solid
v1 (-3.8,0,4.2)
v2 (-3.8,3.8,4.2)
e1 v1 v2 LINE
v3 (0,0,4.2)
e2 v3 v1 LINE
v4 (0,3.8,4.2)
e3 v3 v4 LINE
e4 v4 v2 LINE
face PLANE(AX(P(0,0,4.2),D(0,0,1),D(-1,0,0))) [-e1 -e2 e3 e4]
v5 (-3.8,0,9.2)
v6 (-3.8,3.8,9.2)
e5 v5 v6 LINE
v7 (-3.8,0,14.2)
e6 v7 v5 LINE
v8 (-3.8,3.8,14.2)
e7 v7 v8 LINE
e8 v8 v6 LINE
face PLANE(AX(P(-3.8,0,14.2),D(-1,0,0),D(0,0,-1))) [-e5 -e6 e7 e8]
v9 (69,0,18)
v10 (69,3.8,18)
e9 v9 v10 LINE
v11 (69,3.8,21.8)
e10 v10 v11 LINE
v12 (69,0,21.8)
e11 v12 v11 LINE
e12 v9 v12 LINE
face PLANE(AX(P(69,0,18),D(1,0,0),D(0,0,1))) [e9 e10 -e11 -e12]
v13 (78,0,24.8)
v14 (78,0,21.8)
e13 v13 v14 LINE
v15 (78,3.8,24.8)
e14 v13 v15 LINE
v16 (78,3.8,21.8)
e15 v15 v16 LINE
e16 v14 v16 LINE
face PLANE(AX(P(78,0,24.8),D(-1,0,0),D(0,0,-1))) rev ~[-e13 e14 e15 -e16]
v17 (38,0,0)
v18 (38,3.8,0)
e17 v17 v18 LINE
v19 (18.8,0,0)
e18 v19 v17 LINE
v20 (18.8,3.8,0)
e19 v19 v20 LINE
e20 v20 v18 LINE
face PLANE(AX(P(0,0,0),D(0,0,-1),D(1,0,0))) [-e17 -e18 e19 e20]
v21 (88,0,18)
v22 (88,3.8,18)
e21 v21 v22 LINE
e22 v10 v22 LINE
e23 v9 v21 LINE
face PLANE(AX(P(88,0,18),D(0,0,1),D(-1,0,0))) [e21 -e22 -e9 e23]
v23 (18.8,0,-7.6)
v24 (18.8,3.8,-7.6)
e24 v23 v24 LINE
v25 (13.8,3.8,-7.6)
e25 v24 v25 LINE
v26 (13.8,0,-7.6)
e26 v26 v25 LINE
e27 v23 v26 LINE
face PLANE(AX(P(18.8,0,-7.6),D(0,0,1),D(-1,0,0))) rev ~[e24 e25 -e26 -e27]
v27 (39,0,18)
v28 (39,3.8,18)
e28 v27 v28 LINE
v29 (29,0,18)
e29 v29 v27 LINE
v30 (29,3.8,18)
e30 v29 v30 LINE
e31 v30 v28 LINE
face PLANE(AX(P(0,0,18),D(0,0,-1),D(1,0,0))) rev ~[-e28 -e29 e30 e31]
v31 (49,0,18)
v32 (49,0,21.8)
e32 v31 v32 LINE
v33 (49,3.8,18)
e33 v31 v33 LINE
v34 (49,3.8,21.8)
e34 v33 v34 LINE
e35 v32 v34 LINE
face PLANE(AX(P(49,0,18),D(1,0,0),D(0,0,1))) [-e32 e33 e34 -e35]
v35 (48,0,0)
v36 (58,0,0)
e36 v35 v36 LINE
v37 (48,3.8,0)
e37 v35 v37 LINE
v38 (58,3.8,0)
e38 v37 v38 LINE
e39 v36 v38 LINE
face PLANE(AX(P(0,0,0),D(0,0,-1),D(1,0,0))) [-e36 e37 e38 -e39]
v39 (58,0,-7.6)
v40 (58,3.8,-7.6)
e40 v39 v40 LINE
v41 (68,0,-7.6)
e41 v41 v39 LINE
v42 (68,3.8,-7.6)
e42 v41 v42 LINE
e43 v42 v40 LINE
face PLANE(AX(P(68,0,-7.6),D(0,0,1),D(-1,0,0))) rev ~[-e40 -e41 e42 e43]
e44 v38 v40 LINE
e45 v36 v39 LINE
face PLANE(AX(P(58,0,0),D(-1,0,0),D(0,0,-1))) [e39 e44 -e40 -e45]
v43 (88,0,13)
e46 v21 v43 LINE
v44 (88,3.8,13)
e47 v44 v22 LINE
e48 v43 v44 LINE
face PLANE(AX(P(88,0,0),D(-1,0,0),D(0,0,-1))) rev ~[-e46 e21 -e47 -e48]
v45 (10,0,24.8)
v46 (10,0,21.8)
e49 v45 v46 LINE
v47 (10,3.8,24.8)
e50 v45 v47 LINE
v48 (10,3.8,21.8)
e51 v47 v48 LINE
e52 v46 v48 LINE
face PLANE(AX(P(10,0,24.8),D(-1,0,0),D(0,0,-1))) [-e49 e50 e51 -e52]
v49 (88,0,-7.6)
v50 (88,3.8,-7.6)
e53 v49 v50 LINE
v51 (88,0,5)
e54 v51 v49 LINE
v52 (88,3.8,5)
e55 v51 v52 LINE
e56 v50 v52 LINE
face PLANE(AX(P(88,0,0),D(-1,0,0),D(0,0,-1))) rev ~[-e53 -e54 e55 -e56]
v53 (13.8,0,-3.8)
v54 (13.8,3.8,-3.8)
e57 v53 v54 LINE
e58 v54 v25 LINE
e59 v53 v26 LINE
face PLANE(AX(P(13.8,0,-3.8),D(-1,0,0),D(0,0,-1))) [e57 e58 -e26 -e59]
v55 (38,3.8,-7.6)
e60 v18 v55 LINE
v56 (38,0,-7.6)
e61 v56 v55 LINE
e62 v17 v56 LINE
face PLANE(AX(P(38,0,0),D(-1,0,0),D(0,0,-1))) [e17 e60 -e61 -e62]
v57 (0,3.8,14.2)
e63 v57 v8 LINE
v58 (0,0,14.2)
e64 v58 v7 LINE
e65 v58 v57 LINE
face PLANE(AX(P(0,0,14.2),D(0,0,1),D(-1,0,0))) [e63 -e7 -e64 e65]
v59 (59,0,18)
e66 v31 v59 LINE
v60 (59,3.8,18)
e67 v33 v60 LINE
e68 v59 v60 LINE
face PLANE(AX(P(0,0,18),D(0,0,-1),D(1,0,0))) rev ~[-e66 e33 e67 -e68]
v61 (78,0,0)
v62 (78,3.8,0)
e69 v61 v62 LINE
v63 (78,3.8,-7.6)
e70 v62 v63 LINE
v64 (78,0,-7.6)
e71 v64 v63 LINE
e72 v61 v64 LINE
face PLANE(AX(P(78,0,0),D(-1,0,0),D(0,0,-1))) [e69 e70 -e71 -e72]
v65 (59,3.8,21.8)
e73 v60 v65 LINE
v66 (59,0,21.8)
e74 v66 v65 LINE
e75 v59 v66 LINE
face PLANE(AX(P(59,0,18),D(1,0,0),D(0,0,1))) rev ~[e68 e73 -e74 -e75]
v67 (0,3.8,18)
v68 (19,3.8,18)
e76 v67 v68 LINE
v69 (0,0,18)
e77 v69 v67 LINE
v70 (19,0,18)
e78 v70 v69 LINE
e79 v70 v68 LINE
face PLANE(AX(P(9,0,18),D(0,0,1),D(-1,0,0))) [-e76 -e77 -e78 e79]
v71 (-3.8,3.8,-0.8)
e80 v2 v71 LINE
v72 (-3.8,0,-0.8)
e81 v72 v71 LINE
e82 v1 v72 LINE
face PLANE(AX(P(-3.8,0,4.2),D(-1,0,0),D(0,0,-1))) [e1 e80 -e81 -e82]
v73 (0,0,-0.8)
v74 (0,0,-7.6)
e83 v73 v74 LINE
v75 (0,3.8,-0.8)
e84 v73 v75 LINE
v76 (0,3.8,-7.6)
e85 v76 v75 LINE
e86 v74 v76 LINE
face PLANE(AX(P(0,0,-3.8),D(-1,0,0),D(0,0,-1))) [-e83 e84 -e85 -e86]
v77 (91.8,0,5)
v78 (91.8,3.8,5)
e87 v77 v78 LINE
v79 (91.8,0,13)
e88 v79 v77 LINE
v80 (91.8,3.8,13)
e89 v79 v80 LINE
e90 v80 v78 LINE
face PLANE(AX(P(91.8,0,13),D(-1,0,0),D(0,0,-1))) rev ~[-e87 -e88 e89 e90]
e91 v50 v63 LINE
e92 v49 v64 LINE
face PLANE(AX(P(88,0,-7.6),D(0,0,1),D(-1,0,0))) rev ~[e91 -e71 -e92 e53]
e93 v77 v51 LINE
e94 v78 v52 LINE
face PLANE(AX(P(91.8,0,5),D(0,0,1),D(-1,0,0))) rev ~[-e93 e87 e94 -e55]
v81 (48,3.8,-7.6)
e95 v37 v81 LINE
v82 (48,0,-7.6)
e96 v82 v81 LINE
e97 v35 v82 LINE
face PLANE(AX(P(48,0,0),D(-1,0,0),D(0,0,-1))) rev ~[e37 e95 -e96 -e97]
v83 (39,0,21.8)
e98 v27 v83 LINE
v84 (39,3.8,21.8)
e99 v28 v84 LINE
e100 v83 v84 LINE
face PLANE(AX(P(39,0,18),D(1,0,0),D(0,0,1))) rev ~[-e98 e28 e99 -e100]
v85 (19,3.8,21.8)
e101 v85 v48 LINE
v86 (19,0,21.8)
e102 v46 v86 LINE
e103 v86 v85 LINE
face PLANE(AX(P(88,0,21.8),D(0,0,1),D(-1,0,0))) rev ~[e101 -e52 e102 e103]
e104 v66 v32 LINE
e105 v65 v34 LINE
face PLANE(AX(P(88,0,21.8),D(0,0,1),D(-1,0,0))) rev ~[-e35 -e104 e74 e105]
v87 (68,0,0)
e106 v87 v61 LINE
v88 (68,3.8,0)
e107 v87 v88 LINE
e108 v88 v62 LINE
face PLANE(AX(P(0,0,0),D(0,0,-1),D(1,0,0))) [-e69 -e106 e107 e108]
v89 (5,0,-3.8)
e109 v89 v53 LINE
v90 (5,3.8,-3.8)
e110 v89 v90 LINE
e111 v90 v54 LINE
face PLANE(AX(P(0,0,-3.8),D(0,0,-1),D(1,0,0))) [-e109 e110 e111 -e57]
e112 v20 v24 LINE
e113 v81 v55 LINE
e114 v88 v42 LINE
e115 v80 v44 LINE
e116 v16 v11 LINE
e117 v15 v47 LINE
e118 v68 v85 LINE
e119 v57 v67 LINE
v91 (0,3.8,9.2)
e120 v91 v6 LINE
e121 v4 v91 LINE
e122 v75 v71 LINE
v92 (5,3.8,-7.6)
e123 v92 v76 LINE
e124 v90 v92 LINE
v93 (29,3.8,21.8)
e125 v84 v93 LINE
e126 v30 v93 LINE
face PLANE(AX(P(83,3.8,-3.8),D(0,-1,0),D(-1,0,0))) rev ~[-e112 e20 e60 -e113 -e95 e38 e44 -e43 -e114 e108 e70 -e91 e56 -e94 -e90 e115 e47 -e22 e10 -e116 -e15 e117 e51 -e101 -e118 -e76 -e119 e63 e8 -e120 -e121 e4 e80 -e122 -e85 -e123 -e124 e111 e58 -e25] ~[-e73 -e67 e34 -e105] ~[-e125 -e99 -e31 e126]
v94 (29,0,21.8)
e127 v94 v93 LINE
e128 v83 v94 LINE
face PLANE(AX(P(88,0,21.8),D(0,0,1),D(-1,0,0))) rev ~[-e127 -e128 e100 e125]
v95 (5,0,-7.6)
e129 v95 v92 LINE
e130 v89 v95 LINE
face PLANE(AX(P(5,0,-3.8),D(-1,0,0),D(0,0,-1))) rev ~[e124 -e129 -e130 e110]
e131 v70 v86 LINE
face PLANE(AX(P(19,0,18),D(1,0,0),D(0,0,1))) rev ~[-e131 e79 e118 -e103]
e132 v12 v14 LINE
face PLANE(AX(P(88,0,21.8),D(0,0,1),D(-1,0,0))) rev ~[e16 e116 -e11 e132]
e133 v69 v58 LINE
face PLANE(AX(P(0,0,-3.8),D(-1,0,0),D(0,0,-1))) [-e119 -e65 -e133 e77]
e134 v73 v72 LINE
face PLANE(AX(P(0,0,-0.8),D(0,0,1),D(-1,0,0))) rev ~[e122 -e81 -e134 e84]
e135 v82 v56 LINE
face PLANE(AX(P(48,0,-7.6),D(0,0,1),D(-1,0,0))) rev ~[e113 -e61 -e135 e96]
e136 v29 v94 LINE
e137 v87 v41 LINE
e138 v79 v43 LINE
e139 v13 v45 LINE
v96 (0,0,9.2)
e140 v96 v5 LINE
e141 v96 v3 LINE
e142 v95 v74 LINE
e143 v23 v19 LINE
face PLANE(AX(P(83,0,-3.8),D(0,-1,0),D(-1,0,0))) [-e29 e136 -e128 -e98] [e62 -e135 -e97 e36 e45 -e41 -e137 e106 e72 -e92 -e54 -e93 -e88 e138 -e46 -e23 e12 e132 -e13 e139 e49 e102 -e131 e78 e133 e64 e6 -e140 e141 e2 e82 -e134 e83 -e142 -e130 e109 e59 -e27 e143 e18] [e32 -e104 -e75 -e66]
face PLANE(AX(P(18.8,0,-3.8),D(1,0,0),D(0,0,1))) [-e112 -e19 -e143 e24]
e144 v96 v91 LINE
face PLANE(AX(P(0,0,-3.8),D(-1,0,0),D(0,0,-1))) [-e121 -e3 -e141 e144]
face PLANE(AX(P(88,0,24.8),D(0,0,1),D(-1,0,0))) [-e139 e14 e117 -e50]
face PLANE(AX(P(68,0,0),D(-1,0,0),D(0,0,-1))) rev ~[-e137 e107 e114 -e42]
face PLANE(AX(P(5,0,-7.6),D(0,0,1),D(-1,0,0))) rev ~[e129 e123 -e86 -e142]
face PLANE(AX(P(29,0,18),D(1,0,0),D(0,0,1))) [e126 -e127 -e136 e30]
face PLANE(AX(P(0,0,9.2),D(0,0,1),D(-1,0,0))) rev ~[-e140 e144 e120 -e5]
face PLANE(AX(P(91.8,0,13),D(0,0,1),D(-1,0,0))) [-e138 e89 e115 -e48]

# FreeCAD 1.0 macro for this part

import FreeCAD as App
import Part
import Sketcher

V = App.Vector


def add_polygon(sketch, points):
    """Adds a closed chain of lines whose ends are joined by coincident constraints."""
    first, n = sketch.GeometryCount, len(points)
    for a, b in zip(points, points[1:] + points[:1]):
        sketch.addGeometry(Part.LineSegment(App.Vector(*a, 0), App.Vector(*b, 0)), False)
    for i in range(n):
        sketch.addConstraint(Sketcher.Constraint("Coincident", first + i, 2, first + (i + 1) % n, 1))

doc = App.newDocument("Part")
body = doc.addObject("PartDesign::Body", "Body")

sketch1 = body.newObject("Sketcher::SketchObject", "Sketch")
sketch1.AttachmentSupport = (doc.getObject("XZ_Plane"), [""])
sketch1.MapMode = "FlatFace"
add_polygon(sketch1, [(0, 0), (0, 18), (88, 18), (88, 0)])
sketch1.addConstraint([
    Sketcher.Constraint("Vertical", 0),
    Sketcher.Constraint("Horizontal", 1),
    Sketcher.Constraint("Vertical", 2),
    Sketcher.Constraint("Horizontal", 3),
    Sketcher.Constraint("Coincident", 3, 2, -1, 1),
    Sketcher.Constraint("DistanceX", 1, 1, 1, 2, 88.0),
    Sketcher.Constraint("DistanceY", 0, 1, 0, 2, 18.0),
])
pad1 = body.newObject("PartDesign::Pad", "Pad")
pad1.Profile = sketch1
pad1.Length = 3.8
pad1.Reversed = True

sketch2 = body.newObject("Sketcher::SketchObject", "Sketch001")
sketch2.AttachmentSupport = (doc.getObject("XZ_Plane"), [""])
sketch2.MapMode = "FlatFace"
add_polygon(sketch2, [(0, 0), (0, -3.8), (18.8, -3.8), (18.8, 0)])
sketch2.addConstraint([
    Sketcher.Constraint("Vertical", 0),
    Sketcher.Constraint("Horizontal", 1),
    Sketcher.Constraint("Vertical", 2),
    Sketcher.Constraint("Horizontal", 3),
    Sketcher.Constraint("Coincident", 3, 2, -1, 1),
    Sketcher.Constraint("DistanceX", 1, 1, 1, 2, 18.8),
    Sketcher.Constraint("DistanceY", 0, 2, 0, 1, 3.8),
])
pad2 = body.newObject("PartDesign::Pad", "Pad001")
pad2.Profile = sketch2
pad2.Length = 3.8
pad2.Reversed = True

sketch3 = body.newObject("Sketcher::SketchObject", "Sketch002")
sketch3.AttachmentSupport = (doc.getObject("XZ_Plane"), [""])
sketch3.MapMode = "FlatFace"
add_polygon(sketch3, [(39, 21.8), (39, 18), (49, 18), (49, 21.8)])
sketch3.addConstraint([
    Sketcher.Constraint("Vertical", 0),
    Sketcher.Constraint("Horizontal", 1),
    Sketcher.Constraint("Vertical", 2),
    Sketcher.Constraint("Horizontal", 3),
    Sketcher.Constraint("DistanceX", 1, 1, 1, 2, 10.0),
    Sketcher.Constraint("DistanceY", 0, 2, 0, 1, 3.8),
    Sketcher.Constraint("DistanceX", -1, 1, 0, 2, 39.0),
    Sketcher.Constraint("DistanceY", -1, 1, 0, 2, 18.0),
])
pad3 = body.newObject("PartDesign::Pad", "Pad002")
pad3.Profile = sketch3
pad3.Length = 3.8
pad3.Reversed = True
doc.recompute()

linearpattern = body.newObject("PartDesign::LinearPattern", "LinearPattern")
linearpattern.Originals = [pad3]
linearpattern.Direction = (doc.getObject("X_Axis"), [""])
linearpattern.Mode = "offset"
linearpattern.Offset = 20
linearpattern.Occurrences = 3
body.Tip = linearpattern
doc.recompute()

linearpattern2 = body.newObject("PartDesign::LinearPattern", "LinearPattern001")
linearpattern2.Originals = [pad3]
linearpattern2.Direction = (doc.getObject("X_Axis"), [""])
linearpattern2.Mode = "offset"
linearpattern2.Offset = 20
linearpattern2.Occurrences = 3
linearpattern2.Reversed = True
body.Tip = linearpattern2

sketch4 = body.newObject("Sketcher::SketchObject", "Sketch003")
sketch4.AttachmentSupport = (doc.getObject("XZ_Plane"), [""])
sketch4.MapMode = "FlatFace"
add_polygon(sketch4, [(0, 18), (0, 21.8), (-1, 21.8), (-1, 18)])
add_polygon(sketch4, [(89, 18), (89, 21.8), (88, 21.8), (88, 18)])
sketch4.addConstraint([
    Sketcher.Constraint("Vertical", 0),
    Sketcher.Constraint("Horizontal", 1),
    Sketcher.Constraint("Vertical", 2),
    Sketcher.Constraint("Horizontal", 3),
    Sketcher.Constraint("Vertical", 4),
    Sketcher.Constraint("Horizontal", 5),
    Sketcher.Constraint("Vertical", 6),
    Sketcher.Constraint("Horizontal", 7),
    Sketcher.Constraint("PointOnObject", 0, 2, -2),
    Sketcher.Constraint("Horizontal", 1, 2, 4, 2),
    Sketcher.Constraint("Horizontal", 3, 2, 6, 2),
    Sketcher.Constraint("Equal", 3, 5),
    Sketcher.Constraint("DistanceX", 1, 2, 1, 1, 1.0),
    Sketcher.Constraint("DistanceY", 0, 1, 0, 2, 3.8),
    Sketcher.Constraint("DistanceY", -1, 1, 2, 2, 18.0),
    Sketcher.Constraint("DistanceX", -1, 1, 4, 2, 89.0),
])
pocket1 = body.newObject("PartDesign::Pocket", "Pocket")
pocket1.Profile = sketch4
pocket1.Type = "ThroughAll"

sketch5 = body.newObject("Sketcher::SketchObject", "Sketch004")
sketch5.AttachmentSupport = (doc.getObject("XZ_Plane"), [""])
sketch5.MapMode = "FlatFace"
add_polygon(sketch5, [(88, 21.8), (88, 24.8), (0, 24.8), (0, 21.8)])
sketch5.addConstraint([
    Sketcher.Constraint("Vertical", 0),
    Sketcher.Constraint("Horizontal", 1),
    Sketcher.Constraint("Vertical", 2),
    Sketcher.Constraint("Horizontal", 3),
    Sketcher.Constraint("PointOnObject", 1, 2, -2),
    Sketcher.Constraint("DistanceX", 1, 2, 1, 1, 88.0),
    Sketcher.Constraint("DistanceY", 0, 1, 0, 2, 3.0),
    Sketcher.Constraint("DistanceY", -1, 1, 0, 2, 24.8),
])
pad4 = body.newObject("PartDesign::Pad", "Pad003")
pad4.Profile = sketch5
pad4.Length = 3.8
pad4.Reversed = True

sketch6 = body.newObject("Sketcher::SketchObject", "Sketch005")
sketch6.AttachmentSupport = (doc.getObject("XZ_Plane"), [""])
sketch6.MapMode = "FlatFace"
add_polygon(sketch6, [(5, -7.6), (5, -3.8), (0, -3.8), (0, -7.6)])
add_polygon(sketch6, [(18.8, -7.6), (18.8, -3.8), (13.8, -3.8), (13.8, -7.6)])
sketch6.addConstraint([
    Sketcher.Constraint("Vertical", 0),
    Sketcher.Constraint("Horizontal", 1),
    Sketcher.Constraint("Vertical", 2),
    Sketcher.Constraint("Horizontal", 3),
    Sketcher.Constraint("Vertical", 4),
    Sketcher.Constraint("Horizontal", 5),
    Sketcher.Constraint("Vertical", 6),
    Sketcher.Constraint("Horizontal", 7),
    Sketcher.Constraint("PointOnObject", 1, 2, -2),
    Sketcher.Constraint("Horizontal", 1, 2, 4, 2),
    Sketcher.Constraint("Horizontal", 3, 2, 6, 2),
    Sketcher.Constraint("Equal", 3, 5),
    Sketcher.Constraint("DistanceX", 1, 2, 1, 1, 5.0),
    Sketcher.Constraint("DistanceY", 0, 1, 0, 2, 3.8),
    Sketcher.Constraint("DistanceY", 0, 2, -1, 1, 3.8),
    Sketcher.Constraint("DistanceX", -1, 1, 4, 2, 18.8),
])
pad5 = body.newObject("PartDesign::Pad", "Pad004")
pad5.Profile = sketch6
pad5.Length = 3.8
pad5.Reversed = True

sketch7 = body.newObject("Sketcher::SketchObject", "Sketch006")
sketch7.AttachmentSupport = (doc.getObject("XZ_Plane"), [""])
sketch7.MapMode = "FlatFace"
add_polygon(sketch7, [(88, -8), (88, 0), (78, 0), (78, -8)])
sketch7.addConstraint([
    Sketcher.Constraint("Vertical", 0),
    Sketcher.Constraint("Horizontal", 1),
    Sketcher.Constraint("Vertical", 2),
    Sketcher.Constraint("Horizontal", 3),
    Sketcher.Constraint("PointOnObject", 0, 2, -1),
    Sketcher.Constraint("DistanceX", 1, 2, 1, 1, 10.0),
    Sketcher.Constraint("DistanceY", 0, 1, 0, 2, 7.6),
    Sketcher.Constraint("DistanceX", -1, 1, 0, 2, 88.0),
])
pad6 = body.newObject("PartDesign::Pad", "Pad005")
pad6.Profile = sketch7
pad6.Length = 3.8
pad6.Reversed = True
doc.recompute()

linearpattern3 = body.newObject("PartDesign::LinearPattern", "LinearPattern002")
linearpattern3.Originals = [pad6]
linearpattern3.Direction = (doc.getObject("X_Axis"), [""])
linearpattern3.Mode = "offset"
linearpattern3.Offset = 20
linearpattern3.Occurrences = 3
linearpattern3.Reversed = True
body.Tip = linearpattern3

sketch8 = body.newObject("Sketcher::SketchObject", "Sketch007")
sketch8.AttachmentSupport = (doc.getObject("XZ_Plane"), [""])
sketch8.MapMode = "FlatFace"
add_polygon(sketch8, [(9, 18), (9, 21.8), (0, 21.8), (0, 18)])
add_polygon(sketch8, [(88, 18), (88, 21.8), (79, 21.8), (79, 18)])
sketch8.addConstraint([
    Sketcher.Constraint("Vertical", 0),
    Sketcher.Constraint("Horizontal", 1),
    Sketcher.Constraint("Vertical", 2),
    Sketcher.Constraint("Horizontal", 3),
    Sketcher.Constraint("Vertical", 4),
    Sketcher.Constraint("Horizontal", 5),
    Sketcher.Constraint("Vertical", 6),
    Sketcher.Constraint("Horizontal", 7),
    Sketcher.Constraint("PointOnObject", 1, 2, -2),
    Sketcher.Constraint("Horizontal", 1, 2, 4, 2),
    Sketcher.Constraint("Horizontal", 3, 2, 6, 2),
    Sketcher.Constraint("Equal", 3, 5),
    Sketcher.Constraint("DistanceX", 1, 2, 1, 1, 9.0),
    Sketcher.Constraint("DistanceY", 0, 1, 0, 2, 3.8),
    Sketcher.Constraint("DistanceY", -1, 1, 2, 2, 18.0),
    Sketcher.Constraint("DistanceX", -1, 1, 4, 2, 88.0),
])
pocket2 = body.newObject("PartDesign::Pocket", "Pocket001")
pocket2.Profile = sketch8
pocket2.Type = "ThroughAll"

sketch9 = body.newObject("Sketcher::SketchObject", "Sketch008")
sketch9.AttachmentSupport = (doc.getObject("XZ_Plane"), [""])
sketch9.MapMode = "FlatFace"
add_polygon(sketch9, [(0, 9.2), (0, 14.2), (-3.8, 14.2), (-3.8, 9.2)])
add_polygon(sketch9, [(91.8, 5), (91.8, 13), (88, 13), (88, 5)])
add_polygon(sketch9, [(0, -0.8), (0, 4.2), (-3.8, 4.2), (-3.8, -0.8)])
sketch9.addConstraint([
    Sketcher.Constraint("Vertical", 0),
    Sketcher.Constraint("Horizontal", 1),
    Sketcher.Constraint("Vertical", 2),
    Sketcher.Constraint("Horizontal", 3),
    Sketcher.Constraint("Vertical", 4),
    Sketcher.Constraint("Horizontal", 5),
    Sketcher.Constraint("Vertical", 6),
    Sketcher.Constraint("Horizontal", 7),
    Sketcher.Constraint("Vertical", 8),
    Sketcher.Constraint("Horizontal", 9),
    Sketcher.Constraint("Vertical", 10),
    Sketcher.Constraint("Horizontal", 11),
    Sketcher.Constraint("PointOnObject", 0, 2, -2),
    Sketcher.Constraint("PointOnObject", 8, 2, -2),
    Sketcher.Constraint("Vertical", 2, 2, 9, 2),
    Sketcher.Constraint("Equal", 3, 5),
    Sketcher.Constraint("Equal", 2, 8),
    Sketcher.Constraint("DistanceY", 0, 1, 0, 2, 5.0),
    Sketcher.Constraint("DistanceY", 4, 1, 4, 2, 8.0),
    Sketcher.Constraint("DistanceX", 1, 2, 1, 1, 3.8),
    Sketcher.Constraint("DistanceY", -1, 1, 4, 2, 13.0),
    Sketcher.Constraint("DistanceX", -1, 1, 5, 2, 88.0),
    Sketcher.Constraint("DistanceY", 8, 2, 3, 2, 5.0),
    Sketcher.Constraint("DistanceY", -1, 1, 0, 2, 14.2),
])
pad7 = body.newObject("PartDesign::Pad", "Pad006")
pad7.Profile = sketch9
pad7.Type = "UpToLast"
pad7.Reversed = True

sketch10 = body.newObject("Sketcher::SketchObject", "Sketch009")
sketch10.AttachmentSupport = (doc.getObject("XZ_Plane"), [""])
sketch10.MapMode = "FlatFace"
add_polygon(sketch10, [(10, 21.8), (10, 24.8), (0, 24.8), (0, 21.8)])
add_polygon(sketch10, [(88, 21.8), (88, 24.8), (78, 24.8), (78, 21.8)])
sketch10.addConstraint([
    Sketcher.Constraint("Vertical", 0),
    Sketcher.Constraint("Horizontal", 1),
    Sketcher.Constraint("Vertical", 2),
    Sketcher.Constraint("Horizontal", 3),
    Sketcher.Constraint("Vertical", 4),
    Sketcher.Constraint("Horizontal", 5),
    Sketcher.Constraint("Vertical", 6),
    Sketcher.Constraint("Horizontal", 7),
    Sketcher.Constraint("PointOnObject", 1, 2, -2),
    Sketcher.Constraint("Horizontal", 1, 2, 4, 2),
    Sketcher.Constraint("Horizontal", 3, 2, 6, 2),
    Sketcher.Constraint("Equal", 3, 5),
    Sketcher.Constraint("DistanceX", 1, 2, 1, 1, 10.0),
    Sketcher.Constraint("DistanceY", 0, 1, 0, 2, 3.0),
    Sketcher.Constraint("DistanceX", -1, 1, 4, 2, 88.0),
    Sketcher.Constraint("DistanceY", -1, 1, 0, 2, 24.8),
])
pocket3 = body.newObject("PartDesign::Pocket", "Pocket002")
pocket3.Profile = sketch10
pocket3.Type = "ThroughAll"

doc.recompute()
